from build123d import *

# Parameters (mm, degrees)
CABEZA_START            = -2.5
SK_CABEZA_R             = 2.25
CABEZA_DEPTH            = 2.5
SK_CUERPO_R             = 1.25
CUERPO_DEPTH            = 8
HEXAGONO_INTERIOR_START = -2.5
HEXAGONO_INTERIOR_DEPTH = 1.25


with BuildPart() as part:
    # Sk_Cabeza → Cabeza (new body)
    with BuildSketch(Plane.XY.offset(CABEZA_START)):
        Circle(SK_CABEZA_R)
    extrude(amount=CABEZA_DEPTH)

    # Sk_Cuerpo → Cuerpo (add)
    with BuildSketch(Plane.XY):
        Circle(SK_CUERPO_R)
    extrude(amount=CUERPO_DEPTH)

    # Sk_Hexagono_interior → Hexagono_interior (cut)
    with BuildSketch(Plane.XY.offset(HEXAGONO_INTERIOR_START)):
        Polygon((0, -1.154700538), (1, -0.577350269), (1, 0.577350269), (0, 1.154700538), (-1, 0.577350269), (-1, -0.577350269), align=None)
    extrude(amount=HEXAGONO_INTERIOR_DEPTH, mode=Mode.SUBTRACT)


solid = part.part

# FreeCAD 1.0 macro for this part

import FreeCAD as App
import Part
import Sketcher
from FreeCAD import Vector
Q = App.Units.Quantity

doc = App.newDocument("Part")
body = doc.addObject("PartDesign::Body", "Body")

sketch1 = doc.addObject("Sketcher::SketchObject", "Sketch")
body.addObject(sketch1)
sketch1.AttachmentSupport = (doc.XY_Plane, [""])
sketch1.MapMode = "FlatFace"
sketch1.AttachmentOffset = App.Placement(Vector(0, 0, -2.5), App.Rotation())
sketch1.addGeometry(Part.Circle(Vector(0, 0, 0), Vector(0, 0, 1), 2.2), False)
sketch1.addConstraint([
    Sketcher.Constraint("Coincident", 0, 3, -1, 1),
    Sketcher.Constraint("Diameter", 0, Q("4.5 mm")),
])
pad1 = doc.addObject("PartDesign::Pad", "Pad")
body.addObject(pad1)
pad1.Profile = sketch1
pad1.Length = 2.5

sketch2 = doc.addObject("Sketcher::SketchObject", "Sketch001")
body.addObject(sketch2)
sketch2.AttachmentSupport = (doc.XY_Plane, [""])
sketch2.MapMode = "FlatFace"
sketch2.addGeometry(Part.Circle(Vector(0, 0, 0), Vector(0, 0, 1), 1.2), False)
sketch2.addConstraint([
    Sketcher.Constraint("Coincident", 0, 3, -1, 1),
    Sketcher.Constraint("Diameter", 0, Q("2.5 mm")),
])
pad2 = doc.addObject("PartDesign::Pad", "Pad001")
body.addObject(pad2)
pad2.Profile = sketch2
pad2.Length = 8

sketch3 = doc.addObject("Sketcher::SketchObject", "Sketch002")
body.addObject(sketch3)
sketch3.AttachmentSupport = (doc.XY_Plane, [""])
sketch3.MapMode = "FlatFace"
sketch3.AttachmentOffset = App.Placement(Vector(0, 0, -2.5), App.Rotation())
sketch3.addGeometry([
    Part.LineSegment(Vector(0, -1.2, 0), Vector(1, -0.6, 0)),
    Part.LineSegment(Vector(1, -0.6, 0), Vector(1, 0.6, 0)),
    Part.LineSegment(Vector(1, 0.6, 0), Vector(0, 1.2, 0)),
    Part.LineSegment(Vector(0, 1.2, 0), Vector(-1, 0.6, 0)),
    Part.LineSegment(Vector(-1, 0.6, 0), Vector(-1, -0.6, 0)),
    Part.LineSegment(Vector(-1, -0.6, 0), Vector(0, -1.2, 0)),
], False)
sketch3.addConstraint([
    Sketcher.Constraint("Coincident", 0, 2, 1, 1),
    Sketcher.Constraint("Coincident", 1, 2, 2, 1),
    Sketcher.Constraint("Coincident", 2, 2, 3, 1),
    Sketcher.Constraint("Coincident", 3, 2, 4, 1),
    Sketcher.Constraint("Coincident", 4, 2, 5, 1),
    Sketcher.Constraint("Coincident", 5, 2, 0, 1),
    Sketcher.Constraint("Vertical", 1),
    Sketcher.Constraint("Vertical", 4),
    Sketcher.Constraint("Symmetric", 0, 2, 3, 2, -1, 1),
    Sketcher.Constraint("Symmetric", 2, 2, 5, 2, -1, 1),
    Sketcher.Constraint("PointOnObject", 2, 2, -2),
    Sketcher.Constraint("Parallel", 2, 5),
    Sketcher.Constraint("Horizontal", 1, 2, 3, 2),
    Sketcher.Constraint("Angle", 0, Q("30 deg")),
    Sketcher.Constraint("DistanceX", -1, 1, 0, 2, Q("1 mm")),
    Sketcher.Constraint("DistanceY", 1, 1, 1, 2, Q("1.154701 mm")),
])
pocket1 = doc.addObject("PartDesign::Pocket", "Pocket")
body.addObject(pocket1)
pocket1.Profile = sketch3
pocket1.Length = 1.25
pocket1.Reversed = True

doc.recompute()
